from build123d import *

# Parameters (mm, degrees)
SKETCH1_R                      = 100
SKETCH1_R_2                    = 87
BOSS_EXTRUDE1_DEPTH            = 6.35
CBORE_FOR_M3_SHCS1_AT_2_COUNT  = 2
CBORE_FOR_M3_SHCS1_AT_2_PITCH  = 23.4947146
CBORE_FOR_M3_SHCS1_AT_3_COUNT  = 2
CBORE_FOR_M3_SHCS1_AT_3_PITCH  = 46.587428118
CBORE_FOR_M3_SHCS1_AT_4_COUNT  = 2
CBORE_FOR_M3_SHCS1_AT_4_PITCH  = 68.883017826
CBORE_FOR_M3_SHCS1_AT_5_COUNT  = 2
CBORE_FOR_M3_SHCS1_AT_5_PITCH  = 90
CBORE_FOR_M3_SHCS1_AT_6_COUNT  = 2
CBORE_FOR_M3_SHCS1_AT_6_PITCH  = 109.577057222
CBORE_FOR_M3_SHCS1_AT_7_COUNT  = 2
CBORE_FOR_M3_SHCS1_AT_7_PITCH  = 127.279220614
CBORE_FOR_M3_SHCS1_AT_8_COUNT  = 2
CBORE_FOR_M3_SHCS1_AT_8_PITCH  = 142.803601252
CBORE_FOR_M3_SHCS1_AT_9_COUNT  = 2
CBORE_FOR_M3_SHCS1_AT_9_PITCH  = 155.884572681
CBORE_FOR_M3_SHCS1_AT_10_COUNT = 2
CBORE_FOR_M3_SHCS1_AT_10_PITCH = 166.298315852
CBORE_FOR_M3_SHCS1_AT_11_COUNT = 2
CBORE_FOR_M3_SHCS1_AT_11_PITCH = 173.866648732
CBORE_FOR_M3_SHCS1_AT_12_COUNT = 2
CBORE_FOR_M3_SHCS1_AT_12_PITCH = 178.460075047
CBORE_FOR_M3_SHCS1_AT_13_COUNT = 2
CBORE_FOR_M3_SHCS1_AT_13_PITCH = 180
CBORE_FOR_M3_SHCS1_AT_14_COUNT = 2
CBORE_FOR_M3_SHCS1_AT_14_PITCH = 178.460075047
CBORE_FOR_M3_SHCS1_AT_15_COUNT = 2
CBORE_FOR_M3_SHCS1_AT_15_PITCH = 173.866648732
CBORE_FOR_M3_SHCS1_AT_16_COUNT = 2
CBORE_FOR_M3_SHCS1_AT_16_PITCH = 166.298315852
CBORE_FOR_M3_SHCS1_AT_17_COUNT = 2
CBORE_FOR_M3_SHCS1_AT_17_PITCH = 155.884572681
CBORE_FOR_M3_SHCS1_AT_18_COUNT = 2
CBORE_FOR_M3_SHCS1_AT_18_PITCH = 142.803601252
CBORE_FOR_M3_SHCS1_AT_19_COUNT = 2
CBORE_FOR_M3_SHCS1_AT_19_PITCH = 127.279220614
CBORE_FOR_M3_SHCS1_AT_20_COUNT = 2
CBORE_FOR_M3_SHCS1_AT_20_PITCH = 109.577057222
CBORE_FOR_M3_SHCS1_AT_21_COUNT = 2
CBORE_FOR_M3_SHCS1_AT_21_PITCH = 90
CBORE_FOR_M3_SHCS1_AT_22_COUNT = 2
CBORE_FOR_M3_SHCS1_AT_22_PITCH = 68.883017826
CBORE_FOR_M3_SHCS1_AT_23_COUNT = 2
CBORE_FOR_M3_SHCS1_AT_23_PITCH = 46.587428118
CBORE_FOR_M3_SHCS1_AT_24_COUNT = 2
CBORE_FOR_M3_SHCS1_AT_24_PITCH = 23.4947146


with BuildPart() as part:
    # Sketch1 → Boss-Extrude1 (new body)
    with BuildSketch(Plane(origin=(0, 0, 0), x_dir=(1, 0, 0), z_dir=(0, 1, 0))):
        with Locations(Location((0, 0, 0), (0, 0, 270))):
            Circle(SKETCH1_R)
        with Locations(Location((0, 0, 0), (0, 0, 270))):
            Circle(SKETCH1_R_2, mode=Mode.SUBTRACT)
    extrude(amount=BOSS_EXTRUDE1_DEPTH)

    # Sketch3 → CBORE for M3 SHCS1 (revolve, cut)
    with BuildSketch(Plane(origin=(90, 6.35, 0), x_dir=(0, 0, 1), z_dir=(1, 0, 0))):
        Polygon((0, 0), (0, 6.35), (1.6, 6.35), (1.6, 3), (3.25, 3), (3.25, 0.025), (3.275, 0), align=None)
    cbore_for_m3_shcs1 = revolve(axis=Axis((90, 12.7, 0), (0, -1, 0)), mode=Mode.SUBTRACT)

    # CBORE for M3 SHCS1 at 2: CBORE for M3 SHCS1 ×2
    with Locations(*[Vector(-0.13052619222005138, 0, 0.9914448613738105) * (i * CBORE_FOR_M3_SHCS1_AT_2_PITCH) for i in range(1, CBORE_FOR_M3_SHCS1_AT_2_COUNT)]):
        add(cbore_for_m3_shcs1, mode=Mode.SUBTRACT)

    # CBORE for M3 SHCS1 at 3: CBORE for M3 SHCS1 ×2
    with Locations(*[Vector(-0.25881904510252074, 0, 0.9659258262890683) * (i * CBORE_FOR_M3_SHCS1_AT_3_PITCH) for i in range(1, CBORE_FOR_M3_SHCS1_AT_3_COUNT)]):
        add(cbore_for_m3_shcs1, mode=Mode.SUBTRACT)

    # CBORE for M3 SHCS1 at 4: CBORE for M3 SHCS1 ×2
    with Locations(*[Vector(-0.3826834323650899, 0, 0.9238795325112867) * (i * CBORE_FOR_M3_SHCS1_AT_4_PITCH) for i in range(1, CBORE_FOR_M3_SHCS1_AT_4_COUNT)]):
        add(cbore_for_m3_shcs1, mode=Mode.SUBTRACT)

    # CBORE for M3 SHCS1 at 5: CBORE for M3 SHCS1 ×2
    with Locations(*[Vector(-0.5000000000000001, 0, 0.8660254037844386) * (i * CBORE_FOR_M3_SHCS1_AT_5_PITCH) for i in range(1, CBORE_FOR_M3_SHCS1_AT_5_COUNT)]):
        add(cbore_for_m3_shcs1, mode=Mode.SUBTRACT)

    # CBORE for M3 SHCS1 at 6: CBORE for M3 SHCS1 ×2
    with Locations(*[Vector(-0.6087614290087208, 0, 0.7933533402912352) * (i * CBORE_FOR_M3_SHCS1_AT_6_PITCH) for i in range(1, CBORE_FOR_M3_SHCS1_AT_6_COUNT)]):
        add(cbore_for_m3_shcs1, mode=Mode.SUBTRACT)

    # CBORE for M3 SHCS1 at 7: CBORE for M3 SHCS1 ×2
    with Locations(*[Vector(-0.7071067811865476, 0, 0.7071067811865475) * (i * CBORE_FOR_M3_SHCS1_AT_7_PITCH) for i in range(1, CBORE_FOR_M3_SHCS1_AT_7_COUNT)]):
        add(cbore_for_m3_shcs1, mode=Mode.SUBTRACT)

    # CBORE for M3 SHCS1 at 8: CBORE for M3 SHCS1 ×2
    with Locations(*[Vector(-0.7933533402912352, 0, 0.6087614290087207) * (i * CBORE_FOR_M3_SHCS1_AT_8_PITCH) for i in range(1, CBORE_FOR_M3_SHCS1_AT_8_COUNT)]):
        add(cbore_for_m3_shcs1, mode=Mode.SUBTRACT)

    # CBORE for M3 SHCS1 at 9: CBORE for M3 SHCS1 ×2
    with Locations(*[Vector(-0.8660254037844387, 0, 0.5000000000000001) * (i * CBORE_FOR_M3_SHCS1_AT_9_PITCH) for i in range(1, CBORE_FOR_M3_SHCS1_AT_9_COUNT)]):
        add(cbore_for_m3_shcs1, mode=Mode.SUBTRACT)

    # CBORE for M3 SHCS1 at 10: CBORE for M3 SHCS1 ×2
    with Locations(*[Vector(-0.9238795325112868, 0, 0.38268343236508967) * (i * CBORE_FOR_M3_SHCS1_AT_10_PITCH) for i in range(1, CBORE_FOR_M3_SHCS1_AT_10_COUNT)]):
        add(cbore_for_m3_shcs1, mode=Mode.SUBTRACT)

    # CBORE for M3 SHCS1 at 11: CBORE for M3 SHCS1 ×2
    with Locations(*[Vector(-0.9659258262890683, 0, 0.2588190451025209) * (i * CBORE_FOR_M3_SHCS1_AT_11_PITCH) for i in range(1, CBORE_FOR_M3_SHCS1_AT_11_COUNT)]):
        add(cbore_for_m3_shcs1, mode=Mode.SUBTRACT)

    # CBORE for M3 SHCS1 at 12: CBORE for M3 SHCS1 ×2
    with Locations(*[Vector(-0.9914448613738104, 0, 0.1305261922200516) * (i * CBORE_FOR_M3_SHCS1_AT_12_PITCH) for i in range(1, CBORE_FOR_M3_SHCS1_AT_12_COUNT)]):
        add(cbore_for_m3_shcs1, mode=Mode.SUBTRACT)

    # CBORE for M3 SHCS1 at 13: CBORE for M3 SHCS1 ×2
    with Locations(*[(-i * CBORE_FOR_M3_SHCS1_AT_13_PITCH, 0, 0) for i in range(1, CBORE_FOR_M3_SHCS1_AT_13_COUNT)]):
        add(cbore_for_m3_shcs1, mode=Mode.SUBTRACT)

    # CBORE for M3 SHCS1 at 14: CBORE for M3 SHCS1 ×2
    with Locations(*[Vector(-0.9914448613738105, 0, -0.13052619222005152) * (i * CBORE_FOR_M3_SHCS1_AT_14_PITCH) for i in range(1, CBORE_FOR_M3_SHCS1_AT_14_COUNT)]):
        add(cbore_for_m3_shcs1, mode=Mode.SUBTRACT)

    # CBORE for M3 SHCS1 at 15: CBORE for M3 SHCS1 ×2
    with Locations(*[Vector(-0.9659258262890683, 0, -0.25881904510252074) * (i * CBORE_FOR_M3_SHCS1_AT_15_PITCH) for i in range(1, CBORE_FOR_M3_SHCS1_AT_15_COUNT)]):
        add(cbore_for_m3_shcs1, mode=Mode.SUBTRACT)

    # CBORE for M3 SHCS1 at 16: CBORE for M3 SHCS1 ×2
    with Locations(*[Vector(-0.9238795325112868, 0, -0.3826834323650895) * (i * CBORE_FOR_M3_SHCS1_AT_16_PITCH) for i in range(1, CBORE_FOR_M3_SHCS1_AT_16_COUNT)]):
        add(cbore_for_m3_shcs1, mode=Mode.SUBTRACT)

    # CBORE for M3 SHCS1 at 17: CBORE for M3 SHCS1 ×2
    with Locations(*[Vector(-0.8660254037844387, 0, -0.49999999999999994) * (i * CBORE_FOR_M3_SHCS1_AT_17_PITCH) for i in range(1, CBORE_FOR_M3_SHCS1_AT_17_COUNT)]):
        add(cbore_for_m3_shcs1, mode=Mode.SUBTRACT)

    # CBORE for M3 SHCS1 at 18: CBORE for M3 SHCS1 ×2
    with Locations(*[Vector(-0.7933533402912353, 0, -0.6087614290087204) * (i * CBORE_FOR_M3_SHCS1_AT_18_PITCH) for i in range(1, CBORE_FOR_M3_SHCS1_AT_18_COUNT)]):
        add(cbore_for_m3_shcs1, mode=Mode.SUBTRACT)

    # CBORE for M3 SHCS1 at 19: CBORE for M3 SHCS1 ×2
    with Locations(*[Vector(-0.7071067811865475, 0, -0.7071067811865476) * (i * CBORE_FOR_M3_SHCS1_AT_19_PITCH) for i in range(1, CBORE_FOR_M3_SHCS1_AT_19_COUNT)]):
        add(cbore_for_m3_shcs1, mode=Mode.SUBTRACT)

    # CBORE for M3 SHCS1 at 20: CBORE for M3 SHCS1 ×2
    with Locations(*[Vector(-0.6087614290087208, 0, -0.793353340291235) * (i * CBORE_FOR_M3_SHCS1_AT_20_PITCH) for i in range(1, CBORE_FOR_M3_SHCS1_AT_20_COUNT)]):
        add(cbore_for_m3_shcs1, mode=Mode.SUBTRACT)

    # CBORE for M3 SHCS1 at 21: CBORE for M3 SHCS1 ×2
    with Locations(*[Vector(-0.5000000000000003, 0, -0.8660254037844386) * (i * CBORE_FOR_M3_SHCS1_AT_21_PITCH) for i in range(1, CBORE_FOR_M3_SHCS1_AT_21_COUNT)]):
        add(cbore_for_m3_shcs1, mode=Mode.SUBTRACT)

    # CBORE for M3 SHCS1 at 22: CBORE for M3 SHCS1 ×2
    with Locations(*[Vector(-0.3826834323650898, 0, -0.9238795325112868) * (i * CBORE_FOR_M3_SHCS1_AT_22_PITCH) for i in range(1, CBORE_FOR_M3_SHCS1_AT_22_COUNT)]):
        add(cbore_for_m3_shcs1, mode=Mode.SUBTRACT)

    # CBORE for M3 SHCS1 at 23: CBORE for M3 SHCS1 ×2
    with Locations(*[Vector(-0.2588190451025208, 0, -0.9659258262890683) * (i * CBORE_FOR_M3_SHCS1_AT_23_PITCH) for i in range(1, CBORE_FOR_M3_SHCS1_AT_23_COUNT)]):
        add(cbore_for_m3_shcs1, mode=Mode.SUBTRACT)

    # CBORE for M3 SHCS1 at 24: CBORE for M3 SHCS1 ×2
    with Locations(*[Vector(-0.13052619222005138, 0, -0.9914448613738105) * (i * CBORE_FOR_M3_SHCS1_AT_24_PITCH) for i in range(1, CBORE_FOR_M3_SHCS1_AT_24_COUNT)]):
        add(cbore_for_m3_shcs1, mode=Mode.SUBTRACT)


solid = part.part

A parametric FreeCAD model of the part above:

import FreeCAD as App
import Part
import Sketcher
Q = App.Units.Quantity

doc = App.newDocument("Part")
body = doc.addObject("PartDesign::Body", "Body")

# Sketch on XZ plane
sketch1 = body.newObject("Sketcher::SketchObject", "Sketch")
sketch1.AttachmentSupport = (doc.getObject("XZ_Plane"), [""])
sketch1.MapMode = "FlatFace"
sketch1.addGeometry(Part.Circle(App.Vector(0, 0, 0), App.Vector(0, 0, 1), 100), False)
sketch1.addGeometry(Part.Circle(App.Vector(0, 0, 0), App.Vector(0, 0, 1), 87), False)
sketch1.addConstraint(Sketcher.Constraint("Coincident", 0, 3, -1, 1))
sketch1.addConstraint(Sketcher.Constraint("Coincident", 1, 3, -1, 1))
sketch1.addConstraint(Sketcher.Constraint("Diameter", 0, 200.0))
sketch1.addConstraint(Sketcher.Constraint("Diameter", 1, 174.0))
pad1 = body.newObject("PartDesign::Pad", "Pad")
pad1.Profile = sketch1
pad1.Length = 6.35
pad1.Reversed = True

# Sketch on YZ plane
sketch2 = body.newObject("Sketcher::SketchObject", "Sketch001")
sketch2.AttachmentSupport = (doc.getObject("YZ_Plane"), [""])
sketch2.MapMode = "FlatFace"
sketch2.AttachmentOffset = App.Placement(App.Vector(0, 0, 90), App.Rotation())
sketch2.addGeometry(Part.LineSegment(App.Vector(0, 0, 0), App.Vector(6.35, 0, 0)), False)
sketch2.addGeometry(Part.LineSegment(App.Vector(6.35, 0, 0), App.Vector(6.35, 3.275, 0)), False)
sketch2.addGeometry(Part.LineSegment(App.Vector(6.35, 3.275, 0), App.Vector(6.325, 3.25, 0)), False)
sketch2.addGeometry(Part.LineSegment(App.Vector(6.325, 3.25, 0), App.Vector(3.35, 3.25, 0)), False)
sketch2.addGeometry(Part.LineSegment(App.Vector(3.35, 3.25, 0), App.Vector(3.35, 1.6, 0)), False)
sketch2.addGeometry(Part.LineSegment(App.Vector(3.35, 1.6, 0), App.Vector(0, 1.6, 0)), False)
sketch2.addGeometry(Part.LineSegment(App.Vector(0, 1.6, 0), App.Vector(0, 0, 0)), False)
sketch2.addConstraint(Sketcher.Constraint("Coincident", 0, 2, 1, 1))
sketch2.addConstraint(Sketcher.Constraint("Coincident", 1, 2, 2, 1))
sketch2.addConstraint(Sketcher.Constraint("Coincident", 2, 2, 3, 1))
sketch2.addConstraint(Sketcher.Constraint("Coincident", 3, 2, 4, 1))
sketch2.addConstraint(Sketcher.Constraint("Coincident", 4, 2, 5, 1))
sketch2.addConstraint(Sketcher.Constraint("Coincident", 5, 2, 6, 1))
sketch2.addConstraint(Sketcher.Constraint("Coincident", 6, 2, 0, 1))
sketch2.addConstraint(Sketcher.Constraint("Horizontal", 0))
sketch2.addConstraint(Sketcher.Constraint("Vertical", 1))
sketch2.addConstraint(Sketcher.Constraint("Horizontal", 3))
sketch2.addConstraint(Sketcher.Constraint("Vertical", 4))
sketch2.addConstraint(Sketcher.Constraint("Horizontal", 5))
sketch2.addConstraint(Sketcher.Constraint("Vertical", 6))
sketch2.addConstraint(Sketcher.Constraint("Coincident", 6, 2, -1, 1))
sketch2.addConstraint(Sketcher.Constraint("Angle", 2, Q("-135 deg")))
sketch2.addConstraint(Sketcher.Constraint("DistanceY", 6, 2, 6, 1, 1.6))
sketch2.addConstraint(Sketcher.Constraint("DistanceX", 3, 2, 1, 2, 3.0))
sketch2.addConstraint(Sketcher.Constraint("DistanceX", 0, 1, 0, 2, 6.35))
sketch2.addConstraint(Sketcher.Constraint("DistanceY", 4, 2, 4, 1, 1.65))
sketch2.addConstraint(Sketcher.Constraint("DistanceX", 3, 2, 3, 1, 2.975))
groove = body.newObject("PartDesign::Groove", "Groove")
groove.Profile = sketch2
groove.ReferenceAxis = (sketch2, ["H_Axis"])
groove.Angle = 360
doc.recompute()

datumline = body.newObject("PartDesign::Line", "DatumLine")
datumline.Placement = App.Placement(App.Vector(0, 0, 0), App.Rotation(App.Vector(0, 0, 1), App.Vector(-0.130526192, 0, 0.991444861)))
linearpattern = body.newObject("PartDesign::LinearPattern", "LinearPattern")
linearpattern.Originals = [groove]
linearpattern.Direction = (datumline, [""])
linearpattern.Mode = "offset"
linearpattern.Offset = 23.494715
linearpattern.Occurrences = 2
body.Tip = linearpattern
doc.recompute()

datumline2 = body.newObject("PartDesign::Line", "DatumLine001")
datumline2.Placement = App.Placement(App.Vector(0, 0, 0), App.Rotation(App.Vector(0, 0, 1), App.Vector(-0.258819045, 0, 0.965925826)))
linearpattern2 = body.newObject("PartDesign::LinearPattern", "LinearPattern001")
linearpattern2.Originals = [groove]
linearpattern2.Direction = (datumline2, [""])
linearpattern2.Mode = "offset"
linearpattern2.Offset = 46.587428
linearpattern2.Occurrences = 2
body.Tip = linearpattern2
doc.recompute()

datumline3 = body.newObject("PartDesign::Line", "DatumLine002")
datumline3.Placement = App.Placement(App.Vector(0, 0, 0), App.Rotation(App.Vector(0, 0, 1), App.Vector(-0.382683432, 0, 0.923879533)))
linearpattern3 = body.newObject("PartDesign::LinearPattern", "LinearPattern002")
linearpattern3.Originals = [groove]
linearpattern3.Direction = (datumline3, [""])
linearpattern3.Mode = "offset"
linearpattern3.Offset = 68.883018
linearpattern3.Occurrences = 2
body.Tip = linearpattern3
doc.recompute()

datumline4 = body.newObject("PartDesign::Line", "DatumLine003")
datumline4.Placement = App.Placement(App.Vector(0, 0, 0), App.Rotation(App.Vector(0, 0, 1), App.Vector(-0.5, 0, 0.866025404)))
linearpattern4 = body.newObject("PartDesign::LinearPattern", "LinearPattern003")
linearpattern4.Originals = [groove]
linearpattern4.Direction = (datumline4, [""])
linearpattern4.Mode = "offset"
linearpattern4.Offset = 90
linearpattern4.Occurrences = 2
body.Tip = linearpattern4
doc.recompute()

datumline5 = body.newObject("PartDesign::Line", "DatumLine004")
datumline5.Placement = App.Placement(App.Vector(0, 0, 0), App.Rotation(App.Vector(0, 0, 1), App.Vector(-0.608761429, 0, 0.79335334)))
linearpattern5 = body.newObject("PartDesign::LinearPattern", "LinearPattern004")
linearpattern5.Originals = [groove]
linearpattern5.Direction = (datumline5, [""])
linearpattern5.Mode = "offset"
linearpattern5.Offset = 109.577057
linearpattern5.Occurrences = 2
body.Tip = linearpattern5
doc.recompute()

datumline6 = body.newObject("PartDesign::Line", "DatumLine005")
datumline6.Placement = App.Placement(App.Vector(0, 0, 0), App.Rotation(App.Vector(0, 0, 1), App.Vector(-0.707106781, 0, 0.707106781)))
linearpattern6 = body.newObject("PartDesign::LinearPattern", "LinearPattern005")
linearpattern6.Originals = [groove]
linearpattern6.Direction = (datumline6, [""])
linearpattern6.Mode = "offset"
linearpattern6.Offset = 127.279221
linearpattern6.Occurrences = 2
body.Tip = linearpattern6
doc.recompute()

datumline7 = body.newObject("PartDesign::Line", "DatumLine006")
datumline7.Placement = App.Placement(App.Vector(0, 0, 0), App.Rotation(App.Vector(0, 0, 1), App.Vector(-0.79335334, 0, 0.608761429)))
linearpattern7 = body.newObject("PartDesign::LinearPattern", "LinearPattern006")
linearpattern7.Originals = [groove]
linearpattern7.Direction = (datumline7, [""])
linearpattern7.Mode = "offset"
linearpattern7.Offset = 142.803601
linearpattern7.Occurrences = 2
body.Tip = linearpattern7
doc.recompute()

datumline8 = body.newObject("PartDesign::Line", "DatumLine007")
datumline8.Placement = App.Placement(App.Vector(0, 0, 0), App.Rotation(App.Vector(0, 0, 1), App.Vector(-0.866025404, 0, 0.5)))
linearpattern8 = body.newObject("PartDesign::LinearPattern", "LinearPattern007")
linearpattern8.Originals = [groove]
linearpattern8.Direction = (datumline8, [""])
linearpattern8.Mode = "offset"
linearpattern8.Offset = 155.884573
linearpattern8.Occurrences = 2
body.Tip = linearpattern8
doc.recompute()

datumline9 = body.newObject("PartDesign::Line", "DatumLine008")
datumline9.Placement = App.Placement(App.Vector(0, 0, 0), App.Rotation(App.Vector(0, 0, 1), App.Vector(-0.923879533, 0, 0.382683432)))
linearpattern9 = body.newObject("PartDesign::LinearPattern", "LinearPattern008")
linearpattern9.Originals = [groove]
linearpattern9.Direction = (datumline9, [""])
linearpattern9.Mode = "offset"
linearpattern9.Offset = 166.298316
linearpattern9.Occurrences = 2
body.Tip = linearpattern9
doc.recompute()

datumline10 = body.newObject("PartDesign::Line", "DatumLine009")
datumline10.Placement = App.Placement(App.Vector(0, 0, 0), App.Rotation(App.Vector(0, 0, 1), App.Vector(-0.965925826, 0, 0.258819045)))
linearpattern10 = body.newObject("PartDesign::LinearPattern", "LinearPattern009")
linearpattern10.Originals = [groove]
linearpattern10.Direction = (datumline10, [""])
linearpattern10.Mode = "offset"
linearpattern10.Offset = 173.866649
linearpattern10.Occurrences = 2
body.Tip = linearpattern10
doc.recompute()

datumline11 = body.newObject("PartDesign::Line", "DatumLine010")
datumline11.Placement = App.Placement(App.Vector(0, 0, 0), App.Rotation(App.Vector(0, 0, 1), App.Vector(-0.991444861, 0, 0.130526192)))
linearpattern11 = body.newObject("PartDesign::LinearPattern", "LinearPattern010")
linearpattern11.Originals = [groove]
linearpattern11.Direction = (datumline11, [""])
linearpattern11.Mode = "offset"
linearpattern11.Offset = 178.460075
linearpattern11.Occurrences = 2
body.Tip = linearpattern11
doc.recompute()

linearpattern12 = body.newObject("PartDesign::LinearPattern", "LinearPattern011")
linearpattern12.Originals = [groove]
linearpattern12.Direction = (doc.getObject("X_Axis"), [""])
linearpattern12.Mode = "offset"
linearpattern12.Offset = 180
linearpattern12.Occurrences = 2
linearpattern12.Reversed = True
body.Tip = linearpattern12
doc.recompute()

datumline12 = body.newObject("PartDesign::Line", "DatumLine011")
datumline12.Placement = App.Placement(App.Vector(0, 0, 0), App.Rotation(App.Vector(0, 0, 1), App.Vector(-0.991444861, 0, -0.130526192)))
linearpattern13 = body.newObject("PartDesign::LinearPattern", "LinearPattern012")
linearpattern13.Originals = [groove]
linearpattern13.Direction = (datumline12, [""])
linearpattern13.Mode = "offset"
linearpattern13.Offset = 178.460075
linearpattern13.Occurrences = 2
body.Tip = linearpattern13
doc.recompute()

datumline13 = body.newObject("PartDesign::Line", "DatumLine012")
datumline13.Placement = App.Placement(App.Vector(0, 0, 0), App.Rotation(App.Vector(0, 0, 1), App.Vector(-0.965925826, 0, -0.258819045)))
linearpattern14 = body.newObject("PartDesign::LinearPattern", "LinearPattern013")
linearpattern14.Originals = [groove]
linearpattern14.Direction = (datumline13, [""])
linearpattern14.Mode = "offset"
linearpattern14.Offset = 173.866649
linearpattern14.Occurrences = 2
body.Tip = linearpattern14
doc.recompute()

datumline14 = body.newObject("PartDesign::Line", "DatumLine013")
datumline14.Placement = App.Placement(App.Vector(0, 0, 0), App.Rotation(App.Vector(0, 0, 1), App.Vector(-0.923879533, 0, -0.382683432)))
linearpattern15 = body.newObject("PartDesign::LinearPattern", "LinearPattern014")
linearpattern15.Originals = [groove]
linearpattern15.Direction = (datumline14, [""])
linearpattern15.Mode = "offset"
linearpattern15.Offset = 166.298316
linearpattern15.Occurrences = 2
body.Tip = linearpattern15
doc.recompute()

datumline15 = body.newObject("PartDesign::Line", "DatumLine014")
datumline15.Placement = App.Placement(App.Vector(0, 0, 0), App.Rotation(App.Vector(0, 0, 1), App.Vector(-0.866025404, 0, -0.5)))
linearpattern16 = body.newObject("PartDesign::LinearPattern", "LinearPattern015")
linearpattern16.Originals = [groove]
linearpattern16.Direction = (datumline15, [""])
linearpattern16.Mode = "offset"
linearpattern16.Offset = 155.884573
linearpattern16.Occurrences = 2
body.Tip = linearpattern16
doc.recompute()

datumline16 = body.newObject("PartDesign::Line", "DatumLine015")
datumline16.Placement = App.Placement(App.Vector(0, 0, 0), App.Rotation(App.Vector(0, 0, 1), App.Vector(-0.79335334, 0, -0.608761429)))
linearpattern17 = body.newObject("PartDesign::LinearPattern", "LinearPattern016")
linearpattern17.Originals = [groove]
linearpattern17.Direction = (datumline16, [""])
linearpattern17.Mode = "offset"
linearpattern17.Offset = 142.803601
linearpattern17.Occurrences = 2
body.Tip = linearpattern17
doc.recompute()

datumline17 = body.newObject("PartDesign::Line", "DatumLine016")
datumline17.Placement = App.Placement(App.Vector(0, 0, 0), App.Rotation(App.Vector(0, 0, 1), App.Vector(-0.707106781, 0, -0.707106781)))
linearpattern18 = body.newObject("PartDesign::LinearPattern", "LinearPattern017")
linearpattern18.Originals = [groove]
linearpattern18.Direction = (datumline17, [""])
linearpattern18.Mode = "offset"
linearpattern18.Offset = 127.279221
linearpattern18.Occurrences = 2
body.Tip = linearpattern18
doc.recompute()

datumline18 = body.newObject("PartDesign::Line", "DatumLine017")
datumline18.Placement = App.Placement(App.Vector(0, 0, 0), App.Rotation(App.Vector(0, 0, 1), App.Vector(-0.608761429, 0, -0.79335334)))
linearpattern19 = body.newObject("PartDesign::LinearPattern", "LinearPattern018")
linearpattern19.Originals = [groove]
linearpattern19.Direction = (datumline18, [""])
linearpattern19.Mode = "offset"
linearpattern19.Offset = 109.577057
linearpattern19.Occurrences = 2
body.Tip = linearpattern19
doc.recompute()

datumline19 = body.newObject("PartDesign::Line", "DatumLine018")
datumline19.Placement = App.Placement(App.Vector(0, 0, 0), App.Rotation(App.Vector(0, 0, 1), App.Vector(-0.5, 0, -0.866025404)))
linearpattern20 = body.newObject("PartDesign::LinearPattern", "LinearPattern019")
linearpattern20.Originals = [groove]
linearpattern20.Direction = (datumline19, [""])
linearpattern20.Mode = "offset"
linearpattern20.Offset = 90
linearpattern20.Occurrences = 2
body.Tip = linearpattern20
doc.recompute()

datumline20 = body.newObject("PartDesign::Line", "DatumLine019")
datumline20.Placement = App.Placement(App.Vector(0, 0, 0), App.Rotation(App.Vector(0, 0, 1), App.Vector(-0.382683432, 0, -0.923879533)))
linearpattern21 = body.newObject("PartDesign::LinearPattern", "LinearPattern020")
linearpattern21.Originals = [groove]
linearpattern21.Direction = (datumline20, [""])
linearpattern21.Mode = "offset"
linearpattern21.Offset = 68.883018
linearpattern21.Occurrences = 2
body.Tip = linearpattern21
doc.recompute()

datumline21 = body.newObject("PartDesign::Line", "DatumLine020")
datumline21.Placement = App.Placement(App.Vector(0, 0, 0), App.Rotation(App.Vector(0, 0, 1), App.Vector(-0.258819045, 0, -0.965925826)))
linearpattern22 = body.newObject("PartDesign::LinearPattern", "LinearPattern021")
linearpattern22.Originals = [groove]
linearpattern22.Direction = (datumline21, [""])
linearpattern22.Mode = "offset"
linearpattern22.Offset = 46.587428
linearpattern22.Occurrences = 2
body.Tip = linearpattern22
doc.recompute()

datumline22 = body.newObject("PartDesign::Line", "DatumLine021")
datumline22.Placement = App.Placement(App.Vector(0, 0, 0), App.Rotation(App.Vector(0, 0, 1), App.Vector(-0.130526192, 0, -0.991444861)))
linearpattern23 = body.newObject("PartDesign::LinearPattern", "LinearPattern022")
linearpattern23.Originals = [groove]
linearpattern23.Direction = (datumline22, [""])
linearpattern23.Mode = "offset"
linearpattern23.Offset = 23.494715
linearpattern23.Occurrences = 2
body.Tip = linearpattern23

doc.recompute()
